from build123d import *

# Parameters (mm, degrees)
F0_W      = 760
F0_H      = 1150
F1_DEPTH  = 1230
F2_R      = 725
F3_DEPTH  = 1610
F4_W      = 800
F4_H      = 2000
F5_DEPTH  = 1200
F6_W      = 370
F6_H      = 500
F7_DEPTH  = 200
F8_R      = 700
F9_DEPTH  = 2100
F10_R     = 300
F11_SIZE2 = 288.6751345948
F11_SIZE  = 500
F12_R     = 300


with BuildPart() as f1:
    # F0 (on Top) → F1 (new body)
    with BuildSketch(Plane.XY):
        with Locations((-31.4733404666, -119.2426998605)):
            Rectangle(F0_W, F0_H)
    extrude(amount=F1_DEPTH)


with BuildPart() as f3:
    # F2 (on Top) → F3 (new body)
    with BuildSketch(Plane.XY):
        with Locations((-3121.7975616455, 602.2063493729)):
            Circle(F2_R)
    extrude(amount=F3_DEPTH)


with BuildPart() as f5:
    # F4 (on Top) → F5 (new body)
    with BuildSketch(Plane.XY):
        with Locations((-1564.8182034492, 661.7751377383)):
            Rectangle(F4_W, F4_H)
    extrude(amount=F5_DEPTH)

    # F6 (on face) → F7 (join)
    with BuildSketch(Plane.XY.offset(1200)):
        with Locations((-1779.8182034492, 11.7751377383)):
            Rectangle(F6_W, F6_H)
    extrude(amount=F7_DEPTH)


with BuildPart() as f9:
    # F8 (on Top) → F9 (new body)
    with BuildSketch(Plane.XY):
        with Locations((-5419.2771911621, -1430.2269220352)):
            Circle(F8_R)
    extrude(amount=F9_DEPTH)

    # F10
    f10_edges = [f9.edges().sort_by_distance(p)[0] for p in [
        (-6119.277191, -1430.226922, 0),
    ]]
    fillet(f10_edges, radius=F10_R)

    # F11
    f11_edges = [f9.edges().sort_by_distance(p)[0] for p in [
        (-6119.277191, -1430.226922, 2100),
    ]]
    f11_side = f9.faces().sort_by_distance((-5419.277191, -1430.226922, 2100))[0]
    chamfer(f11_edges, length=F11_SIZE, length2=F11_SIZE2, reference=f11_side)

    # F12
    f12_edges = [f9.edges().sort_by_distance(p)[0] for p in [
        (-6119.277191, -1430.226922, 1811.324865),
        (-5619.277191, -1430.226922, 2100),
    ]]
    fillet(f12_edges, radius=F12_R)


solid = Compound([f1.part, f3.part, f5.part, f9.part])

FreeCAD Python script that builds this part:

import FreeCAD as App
import Part
import Sketcher
Q = App.Units.Quantity


def edges_at(feature, points):
    """Names of the edges that pass closest to the given points."""
    edges = feature.Shape.Edges
    near = lambda p: min(range(len(edges)), key=lambda i: edges[i].distToShape(Part.Vertex(*p))[0])
    return sorted({f"Edge{near(p) + 1}" for p in points})


def add_polygon(sketch, points):
    """Adds a closed chain of lines whose ends are joined by coincident constraints."""
    first, n = sketch.GeometryCount, len(points)
    for a, b in zip(points, points[1:] + points[:1]):
        sketch.addGeometry(Part.LineSegment(App.Vector(*a, 0), App.Vector(*b, 0)), False)
    for i in range(n):
        sketch.addConstraint(Sketcher.Constraint("Coincident", first + i, 2, first + (i + 1) % n, 1))

doc = App.newDocument("Part")
params = doc.addObject("Spreadsheet::Sheet", "Params")
for row, (alias, value) in enumerate([
    ("sketch1_width", "760 mm"),
    ("sketch1_height", "1150 mm"),
    ("pad1_length", "1230 mm"),
    ("sketch2_diameter", "1450 mm"),
    ("pad2_length", "1610 mm"),
    ("sketch3_width", "800 mm"),
    ("sketch3_height", "2000 mm"),
    ("pad3_length", "1200 mm"),
    ("sketch4_width", "370 mm"),
    ("sketch4_height", "500 mm"),
    ("pad4_length", "200 mm"),
    ("sketch5_diameter", "1400 mm"),
    ("pad5_length", "2100 mm"),
    ("fillet_radius", "300 mm"),
    ("chamfer_size", "500 mm"),
    ("chamfer_size2", "288.675135 mm"),
    ("fillet2_radius", "300 mm"),
], start=1):
    params.set(f"A{row}", alias)
    params.set(f"B{row}", "=" + value)
    params.setAlias(f"B{row}", alias)

body = doc.addObject("PartDesign::Body", "Body")

sketch1 = body.newObject("Sketcher::SketchObject", "Sketch")
sketch1.AttachmentSupport = (doc.getObject("XY_Plane"), [""])
sketch1.MapMode = "FlatFace"
add_polygon(sketch1, [(-411, 456), (-411, -694), (349, -694), (349, 456)])
sketch1.addConstraint(Sketcher.Constraint("Vertical", 0))
sketch1.addConstraint(Sketcher.Constraint("Horizontal", 1))
sketch1.addConstraint(Sketcher.Constraint("Vertical", 2))
sketch1.addConstraint(Sketcher.Constraint("Horizontal", 3))
sketch1.addConstraint(Sketcher.Constraint("DistanceX", 1, 1, 1, 2, Q("760 mm")))
sketch1.addConstraint(Sketcher.Constraint("DistanceY", 0, 2, 0, 1, Q("1150 mm")))
sketch1.addConstraint(Sketcher.Constraint("DistanceY", 0, 2, -1, 1, Q("694.2427 mm")))
sketch1.addConstraint(Sketcher.Constraint("DistanceX", 0, 2, -1, 1, Q("411.47334 mm")))
sketch1.setExpression("Constraints[8]", "Params.sketch1_width")
sketch1.setExpression("Constraints[9]", "Params.sketch1_height")
pad1 = body.newObject("PartDesign::Pad", "Pad")
pad1.Profile = sketch1
pad1.setExpression("Length", "Params.pad1_length")
body2 = doc.addObject("PartDesign::Body", "Body001")

sketch2 = body2.newObject("Sketcher::SketchObject", "Sketch001")
sketch2.AttachmentSupport = (doc.getObject("XY_Plane001"), [""])
sketch2.MapMode = "FlatFace"
sketch2.addGeometry(Part.Circle(App.Vector(-3122, 602, 0), App.Vector(0, 0, 1), 725), False)
sketch2.addConstraint(Sketcher.Constraint("Diameter", 0, Q("1450 mm")))
sketch2.addConstraint(Sketcher.Constraint("DistanceX", 0, 3, -1, 1, Q("3121.797562 mm")))
sketch2.addConstraint(Sketcher.Constraint("DistanceY", -1, 1, 0, 3, Q("602.206349 mm")))
sketch2.setExpression("Constraints[0]", "Params.sketch2_diameter")
pad2 = body2.newObject("PartDesign::Pad", "Pad001")
pad2.Profile = sketch2
pad2.setExpression("Length", "Params.pad2_length")
body3 = doc.addObject("PartDesign::Body", "Body002")

sketch3 = body3.newObject("Sketcher::SketchObject", "Sketch002")
sketch3.AttachmentSupport = (doc.getObject("XY_Plane002"), [""])
sketch3.MapMode = "FlatFace"
add_polygon(sketch3, [(-1965, 1662), (-1965, -338), (-1165, -338), (-1165, 1662)])
sketch3.addConstraint(Sketcher.Constraint("Vertical", 0))
sketch3.addConstraint(Sketcher.Constraint("Horizontal", 1))
sketch3.addConstraint(Sketcher.Constraint("Vertical", 2))
sketch3.addConstraint(Sketcher.Constraint("Horizontal", 3))
sketch3.addConstraint(Sketcher.Constraint("DistanceX", 1, 1, 1, 2, Q("800 mm")))
sketch3.addConstraint(Sketcher.Constraint("DistanceY", 0, 2, 0, 1, Q("2000 mm")))
sketch3.addConstraint(Sketcher.Constraint("DistanceX", 0, 2, -1, 1, Q("1964.818203 mm")))
sketch3.addConstraint(Sketcher.Constraint("DistanceY", 0, 2, -1, 1, Q("338.224862 mm")))
sketch3.setExpression("Constraints[8]", "Params.sketch3_width")
sketch3.setExpression("Constraints[9]", "Params.sketch3_height")
pad3 = body3.newObject("PartDesign::Pad", "Pad002")
pad3.Profile = sketch3
pad3.setExpression("Length", "Params.pad3_length")

sketch4 = body3.newObject("Sketcher::SketchObject", "Sketch003")
sketch4.AttachmentSupport = (doc.getObject("XY_Plane002"), [""])
sketch4.MapMode = "FlatFace"
sketch4.AttachmentOffset = App.Placement(App.Vector(0, 0, 1200), App.Rotation())
add_polygon(sketch4, [(-1965, 262), (-1965, -238), (-1595, -238), (-1595, 262)])
sketch4.addConstraint(Sketcher.Constraint("Vertical", 0))
sketch4.addConstraint(Sketcher.Constraint("Horizontal", 1))
sketch4.addConstraint(Sketcher.Constraint("Vertical", 2))
sketch4.addConstraint(Sketcher.Constraint("Horizontal", 3))
sketch4.addConstraint(Sketcher.Constraint("DistanceX", 1, 1, 1, 2, Q("370 mm")))
sketch4.addConstraint(Sketcher.Constraint("DistanceY", 0, 2, 0, 1, Q("500 mm")))
sketch4.addConstraint(Sketcher.Constraint("DistanceX", 0, 2, -1, 1, Q("1964.818203 mm")))
sketch4.addConstraint(Sketcher.Constraint("DistanceY", 0, 2, -1, 1, Q("238.224862 mm")))
sketch4.setExpression("Constraints[8]", "Params.sketch4_width")
sketch4.setExpression("Constraints[9]", "Params.sketch4_height")
pad4 = body3.newObject("PartDesign::Pad", "Pad003")
pad4.Profile = sketch4
pad4.setExpression("Length", "Params.pad4_length")
body4 = doc.addObject("PartDesign::Body", "Body003")

sketch5 = body4.newObject("Sketcher::SketchObject", "Sketch004")
sketch5.AttachmentSupport = (doc.getObject("XY_Plane003"), [""])
sketch5.MapMode = "FlatFace"
sketch5.addGeometry(Part.Circle(App.Vector(-5419, -1430, 0), App.Vector(0, 0, 1), 700), False)
sketch5.addConstraint(Sketcher.Constraint("Diameter", 0, Q("1400 mm")))
sketch5.addConstraint(Sketcher.Constraint("DistanceX", 0, 3, -1, 1, Q("5419.277191 mm")))
sketch5.addConstraint(Sketcher.Constraint("DistanceY", 0, 3, -1, 1, Q("1430.226922 mm")))
sketch5.setExpression("Constraints[0]", "Params.sketch5_diameter")
pad5 = body4.newObject("PartDesign::Pad", "Pad004")
pad5.Profile = sketch5
pad5.setExpression("Length", "Params.pad5_length")
doc.recompute()

fillet = body4.newObject("PartDesign::Fillet", "Fillet")
fillet.Base = (pad5, edges_at(pad5, [(-6119.277, -1430.227, 0)]))
fillet.setExpression("Radius", "Params.fillet_radius")
doc.recompute()

chamfer = body4.newObject("PartDesign::Chamfer", "Chamfer")
chamfer.Base = (fillet, edges_at(fillet, [(-6119.277, -1430.227, 2100)]))
chamfer.ChamferType = "Two distances"
chamfer.setExpression("Size", "Params.chamfer_size")
chamfer.setExpression("Size2", "Params.chamfer_size2")
chamfer.FlipDirection = True
doc.recompute()

fillet2 = body4.newObject("PartDesign::Fillet", "Fillet001")
fillet2.Base = (chamfer, edges_at(chamfer, [(-6119.277, -1430.227, 1811.325), (-5619.277, -1430.227, 2100)]))
fillet2.setExpression("Radius", "Params.fillet2_radius")

doc.recompute()
